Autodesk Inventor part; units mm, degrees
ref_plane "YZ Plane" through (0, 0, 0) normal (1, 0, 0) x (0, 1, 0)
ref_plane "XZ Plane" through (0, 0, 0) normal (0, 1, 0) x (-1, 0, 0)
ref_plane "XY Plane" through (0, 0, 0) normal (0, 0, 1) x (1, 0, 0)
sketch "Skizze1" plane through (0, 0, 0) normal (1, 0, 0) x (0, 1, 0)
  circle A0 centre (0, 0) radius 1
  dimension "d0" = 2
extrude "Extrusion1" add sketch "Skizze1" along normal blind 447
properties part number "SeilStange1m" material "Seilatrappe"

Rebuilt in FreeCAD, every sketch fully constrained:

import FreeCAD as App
import Part
import Sketcher
from FreeCAD import Vector
Q = App.Units.Quantity

doc = App.newDocument("Part")
body = doc.addObject("PartDesign::Body", "Body")

sketch1 = body.newObject("Sketcher::SketchObject", "Sketch")
sketch1.AttachmentSupport = (doc.getObject("YZ_Plane"), [""])
sketch1.MapMode = "FlatFace"
sketch1.addGeometry(Part.Circle(Vector(0, 0, 0), Vector(0, 0, 1), 1), False)
sketch1.addConstraint([
    Sketcher.Constraint("Coincident", 0, 3, -1, 1),
    Sketcher.Constraint("Diameter", 0, Q("2 mm")),
])
pad1 = body.newObject("PartDesign::Pad", "Pad")
pad1.Profile = sketch1
pad1.Length = 447

doc.recompute()
